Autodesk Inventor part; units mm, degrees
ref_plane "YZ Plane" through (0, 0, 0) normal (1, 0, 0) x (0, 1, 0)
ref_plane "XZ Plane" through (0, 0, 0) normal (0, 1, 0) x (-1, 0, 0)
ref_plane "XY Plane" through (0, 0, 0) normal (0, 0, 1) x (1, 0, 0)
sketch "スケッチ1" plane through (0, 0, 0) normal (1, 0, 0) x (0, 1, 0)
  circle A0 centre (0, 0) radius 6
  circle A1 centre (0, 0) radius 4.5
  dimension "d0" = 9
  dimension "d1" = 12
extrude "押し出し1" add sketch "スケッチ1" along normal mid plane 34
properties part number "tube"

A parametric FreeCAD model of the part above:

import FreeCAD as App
import Part
import Sketcher

V = App.Vector
Q = App.Units.Quantity

doc = App.newDocument("Part")
body = doc.addObject("PartDesign::Body", "Body")

# Sketch on YZ plane
sketch1 = body.newObject("Sketcher::SketchObject", "Sketch")
sketch1.AttachmentSupport = (doc.getObject("YZ_Plane"), [""])
sketch1.MapMode = "FlatFace"
sketch1.addGeometry([
    Part.Circle(V(0, 0, 0), V(0, 0, 1), 6),
    Part.Circle(V(0, 0, 0), V(0, 0, 1), 4.5),
], False)
sketch1.addConstraint([
    Sketcher.Constraint("Coincident", 0, 3, -1, 1),
    Sketcher.Constraint("Coincident", 1, 3, -1, 1),
    Sketcher.Constraint("Diameter", 0, Q("12 mm")),
    Sketcher.Constraint("Diameter", 1, Q("9 mm")),
])
pad1 = body.newObject("PartDesign::Pad", "Pad")
pad1.Profile = sketch1
pad1.Length = 34
pad1.Midplane = True

doc.recompute()
